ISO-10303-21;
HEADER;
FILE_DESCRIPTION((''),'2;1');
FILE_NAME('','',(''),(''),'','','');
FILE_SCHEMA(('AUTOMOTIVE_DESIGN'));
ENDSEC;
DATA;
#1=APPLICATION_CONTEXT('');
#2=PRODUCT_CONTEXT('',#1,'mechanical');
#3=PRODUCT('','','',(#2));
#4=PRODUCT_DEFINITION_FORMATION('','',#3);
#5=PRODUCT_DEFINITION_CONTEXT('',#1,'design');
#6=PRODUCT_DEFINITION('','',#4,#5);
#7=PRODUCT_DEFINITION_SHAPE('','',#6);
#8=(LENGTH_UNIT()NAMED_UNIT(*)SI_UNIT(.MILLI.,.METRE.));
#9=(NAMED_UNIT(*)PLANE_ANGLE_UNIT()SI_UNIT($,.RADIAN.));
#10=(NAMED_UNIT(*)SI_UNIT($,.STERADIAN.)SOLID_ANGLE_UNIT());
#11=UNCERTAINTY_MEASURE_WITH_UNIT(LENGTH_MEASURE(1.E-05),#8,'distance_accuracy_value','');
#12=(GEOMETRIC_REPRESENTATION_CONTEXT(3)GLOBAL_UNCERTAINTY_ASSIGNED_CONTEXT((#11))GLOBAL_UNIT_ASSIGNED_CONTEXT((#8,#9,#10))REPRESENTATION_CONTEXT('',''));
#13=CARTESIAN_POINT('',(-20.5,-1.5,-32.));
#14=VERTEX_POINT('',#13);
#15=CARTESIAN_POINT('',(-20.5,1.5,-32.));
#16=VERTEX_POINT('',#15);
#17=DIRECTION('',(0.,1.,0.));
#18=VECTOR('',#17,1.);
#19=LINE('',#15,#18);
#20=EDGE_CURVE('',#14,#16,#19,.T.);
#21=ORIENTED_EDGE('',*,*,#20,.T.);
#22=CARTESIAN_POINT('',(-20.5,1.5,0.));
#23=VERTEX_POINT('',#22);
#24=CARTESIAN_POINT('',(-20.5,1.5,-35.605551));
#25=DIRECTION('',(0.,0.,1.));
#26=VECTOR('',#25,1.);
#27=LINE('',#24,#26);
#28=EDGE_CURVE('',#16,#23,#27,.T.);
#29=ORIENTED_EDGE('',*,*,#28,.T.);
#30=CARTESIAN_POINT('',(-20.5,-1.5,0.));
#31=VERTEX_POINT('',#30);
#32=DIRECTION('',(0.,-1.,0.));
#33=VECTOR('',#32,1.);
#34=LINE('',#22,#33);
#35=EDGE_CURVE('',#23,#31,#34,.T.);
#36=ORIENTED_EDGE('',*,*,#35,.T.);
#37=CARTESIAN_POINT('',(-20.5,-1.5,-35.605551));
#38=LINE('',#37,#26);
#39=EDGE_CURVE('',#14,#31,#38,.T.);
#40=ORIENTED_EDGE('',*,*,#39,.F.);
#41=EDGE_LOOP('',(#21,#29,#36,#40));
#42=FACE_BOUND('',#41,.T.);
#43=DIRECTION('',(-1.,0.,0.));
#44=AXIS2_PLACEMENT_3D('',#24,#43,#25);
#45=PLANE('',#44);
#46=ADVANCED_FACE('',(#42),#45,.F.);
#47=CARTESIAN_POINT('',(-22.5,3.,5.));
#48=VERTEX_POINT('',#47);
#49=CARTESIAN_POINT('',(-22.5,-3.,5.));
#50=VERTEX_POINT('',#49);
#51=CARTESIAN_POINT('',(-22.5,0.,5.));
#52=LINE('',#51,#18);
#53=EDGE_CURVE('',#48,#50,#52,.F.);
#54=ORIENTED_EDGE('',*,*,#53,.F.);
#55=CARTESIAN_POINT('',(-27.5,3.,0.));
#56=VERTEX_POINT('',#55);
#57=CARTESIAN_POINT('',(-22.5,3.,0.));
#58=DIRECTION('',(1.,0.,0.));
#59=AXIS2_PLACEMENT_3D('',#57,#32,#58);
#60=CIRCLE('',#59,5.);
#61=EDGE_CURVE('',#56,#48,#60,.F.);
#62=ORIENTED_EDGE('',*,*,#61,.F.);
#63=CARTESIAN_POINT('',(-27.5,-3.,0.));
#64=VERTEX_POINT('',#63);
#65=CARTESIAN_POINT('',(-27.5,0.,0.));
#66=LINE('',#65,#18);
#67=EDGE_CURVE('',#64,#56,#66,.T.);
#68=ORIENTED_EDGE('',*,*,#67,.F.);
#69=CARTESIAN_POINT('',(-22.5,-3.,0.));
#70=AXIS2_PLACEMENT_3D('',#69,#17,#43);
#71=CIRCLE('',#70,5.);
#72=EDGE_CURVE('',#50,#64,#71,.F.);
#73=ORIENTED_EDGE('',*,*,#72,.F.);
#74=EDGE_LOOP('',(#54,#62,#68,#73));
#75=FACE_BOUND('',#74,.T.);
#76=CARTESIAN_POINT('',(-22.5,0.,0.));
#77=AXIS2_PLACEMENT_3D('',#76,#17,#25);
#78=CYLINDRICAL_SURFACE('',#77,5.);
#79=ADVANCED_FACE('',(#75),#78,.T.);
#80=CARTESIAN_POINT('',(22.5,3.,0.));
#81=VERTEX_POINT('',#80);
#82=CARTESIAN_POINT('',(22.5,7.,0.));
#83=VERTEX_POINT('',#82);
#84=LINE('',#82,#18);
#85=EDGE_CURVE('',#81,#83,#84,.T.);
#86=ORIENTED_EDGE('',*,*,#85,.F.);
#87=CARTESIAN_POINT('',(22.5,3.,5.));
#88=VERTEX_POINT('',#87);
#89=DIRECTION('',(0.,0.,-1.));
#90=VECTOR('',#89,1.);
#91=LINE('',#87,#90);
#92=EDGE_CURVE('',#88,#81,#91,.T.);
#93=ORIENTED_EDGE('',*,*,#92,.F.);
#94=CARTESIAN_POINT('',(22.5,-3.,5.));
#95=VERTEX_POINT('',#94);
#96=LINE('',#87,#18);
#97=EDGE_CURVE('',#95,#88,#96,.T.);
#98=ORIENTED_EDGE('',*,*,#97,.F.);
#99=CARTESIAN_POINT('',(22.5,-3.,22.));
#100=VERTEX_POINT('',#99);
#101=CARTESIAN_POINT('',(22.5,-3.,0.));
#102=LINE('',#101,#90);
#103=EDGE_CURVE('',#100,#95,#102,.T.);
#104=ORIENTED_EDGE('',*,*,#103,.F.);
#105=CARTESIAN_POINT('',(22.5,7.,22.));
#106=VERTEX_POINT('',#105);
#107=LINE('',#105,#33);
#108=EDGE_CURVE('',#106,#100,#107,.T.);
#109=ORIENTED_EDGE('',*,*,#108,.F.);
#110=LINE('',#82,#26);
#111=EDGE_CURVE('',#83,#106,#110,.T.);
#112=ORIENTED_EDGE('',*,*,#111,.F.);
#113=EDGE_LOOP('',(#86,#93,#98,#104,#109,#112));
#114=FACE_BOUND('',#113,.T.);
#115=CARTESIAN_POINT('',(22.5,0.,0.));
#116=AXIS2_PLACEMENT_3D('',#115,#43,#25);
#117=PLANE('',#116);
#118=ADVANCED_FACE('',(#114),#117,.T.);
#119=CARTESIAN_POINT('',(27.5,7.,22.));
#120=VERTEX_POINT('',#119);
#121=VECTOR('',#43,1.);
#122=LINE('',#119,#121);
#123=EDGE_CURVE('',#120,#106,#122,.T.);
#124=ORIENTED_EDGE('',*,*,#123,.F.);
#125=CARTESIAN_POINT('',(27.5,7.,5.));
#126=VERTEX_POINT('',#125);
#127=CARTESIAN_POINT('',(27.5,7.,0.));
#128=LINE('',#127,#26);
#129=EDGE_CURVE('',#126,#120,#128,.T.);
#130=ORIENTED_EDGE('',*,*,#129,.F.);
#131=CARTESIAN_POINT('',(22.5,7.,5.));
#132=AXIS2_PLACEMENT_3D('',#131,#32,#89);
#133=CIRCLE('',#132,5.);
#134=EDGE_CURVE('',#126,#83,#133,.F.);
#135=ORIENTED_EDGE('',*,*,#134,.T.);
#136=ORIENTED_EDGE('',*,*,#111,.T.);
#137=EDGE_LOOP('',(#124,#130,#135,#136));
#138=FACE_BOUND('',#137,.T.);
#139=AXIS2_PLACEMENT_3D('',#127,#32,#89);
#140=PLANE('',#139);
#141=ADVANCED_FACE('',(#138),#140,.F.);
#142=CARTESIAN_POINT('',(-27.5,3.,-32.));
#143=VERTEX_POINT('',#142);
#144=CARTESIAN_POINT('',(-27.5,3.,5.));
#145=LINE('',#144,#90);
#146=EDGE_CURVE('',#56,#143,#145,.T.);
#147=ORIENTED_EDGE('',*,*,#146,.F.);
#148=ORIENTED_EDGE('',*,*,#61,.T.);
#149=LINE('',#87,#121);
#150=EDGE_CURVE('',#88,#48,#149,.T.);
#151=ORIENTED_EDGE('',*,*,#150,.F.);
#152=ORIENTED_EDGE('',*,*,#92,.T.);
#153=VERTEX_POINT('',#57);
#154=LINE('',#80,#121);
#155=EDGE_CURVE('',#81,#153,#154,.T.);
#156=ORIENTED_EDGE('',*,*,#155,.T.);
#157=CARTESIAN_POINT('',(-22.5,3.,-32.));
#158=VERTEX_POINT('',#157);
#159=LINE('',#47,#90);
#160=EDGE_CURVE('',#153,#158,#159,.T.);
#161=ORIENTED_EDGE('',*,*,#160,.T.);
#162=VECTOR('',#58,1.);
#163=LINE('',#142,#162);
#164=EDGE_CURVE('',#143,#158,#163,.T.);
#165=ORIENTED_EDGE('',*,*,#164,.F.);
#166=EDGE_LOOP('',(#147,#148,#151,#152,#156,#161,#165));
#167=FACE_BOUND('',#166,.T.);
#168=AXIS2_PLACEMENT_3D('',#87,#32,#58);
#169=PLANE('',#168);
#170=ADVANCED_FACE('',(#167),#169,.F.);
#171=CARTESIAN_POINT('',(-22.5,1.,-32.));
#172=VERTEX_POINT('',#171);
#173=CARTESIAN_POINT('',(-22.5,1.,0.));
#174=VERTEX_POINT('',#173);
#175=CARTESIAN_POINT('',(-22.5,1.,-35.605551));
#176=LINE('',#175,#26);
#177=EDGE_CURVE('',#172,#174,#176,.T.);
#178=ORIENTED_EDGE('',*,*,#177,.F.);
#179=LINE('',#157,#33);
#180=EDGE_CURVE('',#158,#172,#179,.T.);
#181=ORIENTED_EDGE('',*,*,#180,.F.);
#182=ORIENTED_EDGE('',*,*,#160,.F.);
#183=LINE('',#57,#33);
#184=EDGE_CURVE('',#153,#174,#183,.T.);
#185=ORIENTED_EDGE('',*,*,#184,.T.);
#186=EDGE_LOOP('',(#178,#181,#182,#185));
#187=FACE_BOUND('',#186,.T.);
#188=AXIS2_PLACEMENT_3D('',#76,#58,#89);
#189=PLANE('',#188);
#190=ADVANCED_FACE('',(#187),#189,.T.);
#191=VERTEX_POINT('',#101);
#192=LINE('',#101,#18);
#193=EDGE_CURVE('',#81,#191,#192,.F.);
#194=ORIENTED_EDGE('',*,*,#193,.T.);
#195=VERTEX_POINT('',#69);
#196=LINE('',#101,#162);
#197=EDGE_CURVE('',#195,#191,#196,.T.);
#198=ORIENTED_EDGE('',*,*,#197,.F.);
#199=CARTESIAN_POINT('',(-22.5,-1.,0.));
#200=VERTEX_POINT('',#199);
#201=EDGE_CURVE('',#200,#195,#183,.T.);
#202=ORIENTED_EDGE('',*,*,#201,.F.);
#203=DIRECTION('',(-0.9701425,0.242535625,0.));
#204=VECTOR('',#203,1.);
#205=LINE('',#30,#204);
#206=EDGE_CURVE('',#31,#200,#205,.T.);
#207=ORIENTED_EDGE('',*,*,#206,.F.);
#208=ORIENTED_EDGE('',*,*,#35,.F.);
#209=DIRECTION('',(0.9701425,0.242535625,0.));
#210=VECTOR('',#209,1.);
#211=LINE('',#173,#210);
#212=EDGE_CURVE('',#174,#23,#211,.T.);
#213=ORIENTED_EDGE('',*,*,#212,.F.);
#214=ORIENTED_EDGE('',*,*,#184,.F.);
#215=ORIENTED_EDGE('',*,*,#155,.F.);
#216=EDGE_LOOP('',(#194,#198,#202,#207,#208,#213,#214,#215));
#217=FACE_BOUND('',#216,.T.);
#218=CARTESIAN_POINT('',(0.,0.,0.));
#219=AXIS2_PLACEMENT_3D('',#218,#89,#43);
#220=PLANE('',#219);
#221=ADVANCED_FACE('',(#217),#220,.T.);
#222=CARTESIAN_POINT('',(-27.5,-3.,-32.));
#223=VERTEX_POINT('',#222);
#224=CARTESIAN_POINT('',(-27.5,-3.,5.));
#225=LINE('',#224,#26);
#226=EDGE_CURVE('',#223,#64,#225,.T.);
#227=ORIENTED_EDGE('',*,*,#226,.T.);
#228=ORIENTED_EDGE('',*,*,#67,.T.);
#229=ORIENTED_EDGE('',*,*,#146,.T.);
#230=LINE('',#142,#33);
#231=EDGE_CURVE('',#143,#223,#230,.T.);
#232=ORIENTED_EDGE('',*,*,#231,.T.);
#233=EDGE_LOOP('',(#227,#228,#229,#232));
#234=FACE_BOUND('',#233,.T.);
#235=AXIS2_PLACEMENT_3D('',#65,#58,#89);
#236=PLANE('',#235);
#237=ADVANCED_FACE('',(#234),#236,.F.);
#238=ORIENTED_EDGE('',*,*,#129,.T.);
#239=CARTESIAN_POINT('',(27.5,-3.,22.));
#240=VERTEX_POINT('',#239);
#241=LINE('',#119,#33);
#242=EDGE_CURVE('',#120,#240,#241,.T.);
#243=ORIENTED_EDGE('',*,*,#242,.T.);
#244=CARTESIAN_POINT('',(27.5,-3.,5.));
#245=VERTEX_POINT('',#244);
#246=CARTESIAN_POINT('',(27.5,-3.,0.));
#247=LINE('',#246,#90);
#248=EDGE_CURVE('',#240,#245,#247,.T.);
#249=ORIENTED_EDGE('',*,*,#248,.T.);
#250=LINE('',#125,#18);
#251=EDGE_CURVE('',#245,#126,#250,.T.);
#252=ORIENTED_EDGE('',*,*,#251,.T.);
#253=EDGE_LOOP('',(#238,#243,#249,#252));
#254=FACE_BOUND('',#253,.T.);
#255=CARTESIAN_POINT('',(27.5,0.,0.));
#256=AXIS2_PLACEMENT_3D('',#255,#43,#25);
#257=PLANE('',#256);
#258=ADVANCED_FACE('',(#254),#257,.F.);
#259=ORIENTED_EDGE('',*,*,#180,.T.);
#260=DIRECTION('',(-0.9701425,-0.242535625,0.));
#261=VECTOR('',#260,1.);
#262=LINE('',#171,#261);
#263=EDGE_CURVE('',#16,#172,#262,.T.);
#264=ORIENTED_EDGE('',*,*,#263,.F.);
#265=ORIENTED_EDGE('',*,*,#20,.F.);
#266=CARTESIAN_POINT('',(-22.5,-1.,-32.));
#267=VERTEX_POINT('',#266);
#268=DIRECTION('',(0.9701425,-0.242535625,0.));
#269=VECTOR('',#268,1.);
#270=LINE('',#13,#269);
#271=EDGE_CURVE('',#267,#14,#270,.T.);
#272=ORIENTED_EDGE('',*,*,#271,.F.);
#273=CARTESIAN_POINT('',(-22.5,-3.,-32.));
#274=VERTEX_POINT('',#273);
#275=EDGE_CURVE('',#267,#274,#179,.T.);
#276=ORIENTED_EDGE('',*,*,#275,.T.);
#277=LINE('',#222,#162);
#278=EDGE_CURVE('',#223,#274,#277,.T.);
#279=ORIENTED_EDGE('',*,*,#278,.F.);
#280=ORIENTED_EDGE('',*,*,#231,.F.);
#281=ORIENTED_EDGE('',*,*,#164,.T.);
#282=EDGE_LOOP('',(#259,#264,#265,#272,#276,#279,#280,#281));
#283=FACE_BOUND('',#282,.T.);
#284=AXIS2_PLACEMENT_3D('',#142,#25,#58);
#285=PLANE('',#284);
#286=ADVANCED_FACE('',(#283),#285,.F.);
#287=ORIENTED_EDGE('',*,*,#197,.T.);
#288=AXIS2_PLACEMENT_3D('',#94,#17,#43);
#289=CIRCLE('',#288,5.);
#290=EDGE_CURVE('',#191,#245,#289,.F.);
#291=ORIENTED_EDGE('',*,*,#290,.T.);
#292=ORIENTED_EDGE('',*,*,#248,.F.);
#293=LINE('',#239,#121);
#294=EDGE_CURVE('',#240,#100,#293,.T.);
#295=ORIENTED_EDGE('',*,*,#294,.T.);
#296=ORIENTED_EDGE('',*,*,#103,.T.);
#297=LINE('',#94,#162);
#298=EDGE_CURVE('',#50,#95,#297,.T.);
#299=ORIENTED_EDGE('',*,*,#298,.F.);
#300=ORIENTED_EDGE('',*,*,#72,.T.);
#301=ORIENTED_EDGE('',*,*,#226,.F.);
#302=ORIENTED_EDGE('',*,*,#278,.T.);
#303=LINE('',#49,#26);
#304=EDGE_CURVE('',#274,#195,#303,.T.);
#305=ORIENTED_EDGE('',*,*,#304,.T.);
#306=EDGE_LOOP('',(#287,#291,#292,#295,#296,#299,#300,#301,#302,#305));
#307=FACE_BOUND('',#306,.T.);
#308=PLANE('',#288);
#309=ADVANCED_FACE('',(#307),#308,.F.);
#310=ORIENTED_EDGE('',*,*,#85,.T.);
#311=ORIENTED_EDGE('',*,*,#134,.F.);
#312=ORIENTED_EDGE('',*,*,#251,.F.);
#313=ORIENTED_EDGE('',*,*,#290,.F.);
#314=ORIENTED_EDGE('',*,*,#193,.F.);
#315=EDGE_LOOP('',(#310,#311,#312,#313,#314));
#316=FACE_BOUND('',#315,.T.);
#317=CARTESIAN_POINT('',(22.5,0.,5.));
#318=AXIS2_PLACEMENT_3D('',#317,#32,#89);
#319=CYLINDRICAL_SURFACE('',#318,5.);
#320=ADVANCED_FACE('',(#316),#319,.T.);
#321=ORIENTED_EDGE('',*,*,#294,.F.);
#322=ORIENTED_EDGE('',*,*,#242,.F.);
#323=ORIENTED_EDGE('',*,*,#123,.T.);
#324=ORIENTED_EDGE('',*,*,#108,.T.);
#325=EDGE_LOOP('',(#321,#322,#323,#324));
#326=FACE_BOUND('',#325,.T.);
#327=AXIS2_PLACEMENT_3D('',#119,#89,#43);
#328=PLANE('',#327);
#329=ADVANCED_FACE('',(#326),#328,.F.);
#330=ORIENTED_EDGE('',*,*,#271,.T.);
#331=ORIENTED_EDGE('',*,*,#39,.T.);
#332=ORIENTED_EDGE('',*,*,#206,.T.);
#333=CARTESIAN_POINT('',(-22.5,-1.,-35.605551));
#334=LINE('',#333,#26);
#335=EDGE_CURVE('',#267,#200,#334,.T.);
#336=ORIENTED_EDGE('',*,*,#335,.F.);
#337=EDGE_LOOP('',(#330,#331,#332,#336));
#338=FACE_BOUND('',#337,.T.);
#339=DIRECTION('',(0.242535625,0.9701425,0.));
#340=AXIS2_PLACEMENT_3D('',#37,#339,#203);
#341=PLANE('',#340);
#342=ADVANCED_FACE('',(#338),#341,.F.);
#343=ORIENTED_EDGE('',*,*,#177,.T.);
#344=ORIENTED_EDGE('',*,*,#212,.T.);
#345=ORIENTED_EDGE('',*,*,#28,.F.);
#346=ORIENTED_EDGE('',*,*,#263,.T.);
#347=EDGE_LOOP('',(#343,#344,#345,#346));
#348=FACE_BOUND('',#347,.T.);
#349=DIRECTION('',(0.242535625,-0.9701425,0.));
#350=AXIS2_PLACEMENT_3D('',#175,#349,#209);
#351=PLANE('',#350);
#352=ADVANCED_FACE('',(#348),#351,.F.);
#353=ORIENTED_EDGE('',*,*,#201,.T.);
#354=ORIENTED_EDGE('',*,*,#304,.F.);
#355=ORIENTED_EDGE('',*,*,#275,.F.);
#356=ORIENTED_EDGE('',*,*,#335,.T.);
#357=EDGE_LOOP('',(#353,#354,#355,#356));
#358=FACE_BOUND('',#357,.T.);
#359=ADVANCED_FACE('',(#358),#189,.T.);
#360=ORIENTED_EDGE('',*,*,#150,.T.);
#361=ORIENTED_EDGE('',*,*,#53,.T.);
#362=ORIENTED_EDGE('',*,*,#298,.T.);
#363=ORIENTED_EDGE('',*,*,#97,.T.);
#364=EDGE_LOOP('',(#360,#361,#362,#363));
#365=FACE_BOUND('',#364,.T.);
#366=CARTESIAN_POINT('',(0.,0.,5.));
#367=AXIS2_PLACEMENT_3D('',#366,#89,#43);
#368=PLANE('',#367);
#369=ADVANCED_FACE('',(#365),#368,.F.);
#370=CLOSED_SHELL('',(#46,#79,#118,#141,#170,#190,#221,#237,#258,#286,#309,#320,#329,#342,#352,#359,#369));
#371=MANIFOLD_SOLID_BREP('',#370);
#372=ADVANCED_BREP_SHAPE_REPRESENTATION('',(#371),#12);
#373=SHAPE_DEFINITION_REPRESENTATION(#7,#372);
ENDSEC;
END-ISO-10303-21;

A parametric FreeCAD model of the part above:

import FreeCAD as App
import Part
import Sketcher


def edges_at(feature, points):
    """Names of the edges that pass closest to the given points."""
    edges = feature.Shape.Edges
    near = lambda p: min(range(len(edges)), key=lambda i: edges[i].distToShape(Part.Vertex(*p))[0])
    return sorted({f"Edge{near(p) + 1}" for p in points})


def add_polygon(sketch, points):
    """Adds a closed chain of lines whose ends are joined by coincident constraints."""
    first, n = sketch.GeometryCount, len(points)
    for a, b in zip(points, points[1:] + points[:1]):
        sketch.addGeometry(Part.LineSegment(App.Vector(*a, 0), App.Vector(*b, 0)), False)
    for i in range(n):
        sketch.addConstraint(Sketcher.Constraint("Coincident", first + i, 2, first + (i + 1) % n, 1))

doc = App.newDocument("Part")
params = doc.addObject("Spreadsheet::Sheet", "Params")
for row, (alias, value) in enumerate([
    ("sketch1_width", "45 mm"),
    ("sketch1_height", "6 mm"),
    ("pad1_length", "5 mm"),
    ("sketch2_width", "6 mm"),
    ("sketch2_height", "37 mm"),
    ("pad2_length", "5 mm"),
    ("fillet_radius", "5 mm"),
    ("sketch3_width", "10 mm"),
    ("sketch3_height", "22 mm"),
    ("pad3_length", "5 mm"),
    ("fillet2_radius", "5 mm"),
    ("sketch4_height", "3 mm"),
    ("sketch4_height2", "2 mm"),
    ("pad4_length", "32 mm"),
], start=1):
    params.set(f"A{row}", alias)
    params.set(f"B{row}", "=" + value)
    params.setAlias(f"B{row}", alias)

body = doc.addObject("PartDesign::Body", "Body")

sketch1 = body.newObject("Sketcher::SketchObject", "Sketch")
sketch1.AttachmentSupport = (doc.getObject("XY_Plane"), [""])
sketch1.MapMode = "FlatFace"
add_polygon(sketch1, [(-22.5, 3), (-22.5, -3), (22.5, -3), (22.5, 3)])
sketch1.addConstraint(Sketcher.Constraint("Vertical", 0))
sketch1.addConstraint(Sketcher.Constraint("Horizontal", 1))
sketch1.addConstraint(Sketcher.Constraint("Vertical", 2))
sketch1.addConstraint(Sketcher.Constraint("Horizontal", 3))
sketch1.addConstraint(Sketcher.Constraint("Symmetric", 0, 2, 2, 2, -1, 1))
sketch1.addConstraint(Sketcher.Constraint("DistanceX", 1, 1, 1, 2, 45.0))
sketch1.addConstraint(Sketcher.Constraint("DistanceY", 0, 2, 0, 1, 6.0))
sketch1.setExpression("Constraints[9]", "Params.sketch1_width")
sketch1.setExpression("Constraints[10]", "Params.sketch1_height")
pad1 = body.newObject("PartDesign::Pad", "Pad")
pad1.Profile = sketch1
pad1.setExpression("Length", "Params.pad1_length")

sketch2 = body.newObject("Sketcher::SketchObject", "Sketch001")
sketch2.AttachmentSupport = (doc.getObject("YZ_Plane"), [""])
sketch2.MapMode = "FlatFace"
sketch2.AttachmentOffset = App.Placement(App.Vector(0, 0, -22.5), App.Rotation())
add_polygon(sketch2, [(3, -32), (-3, -32), (-3, 5), (3, 5)])
sketch2.addConstraint(Sketcher.Constraint("Horizontal", 0))
sketch2.addConstraint(Sketcher.Constraint("Vertical", 1))
sketch2.addConstraint(Sketcher.Constraint("Horizontal", 2))
sketch2.addConstraint(Sketcher.Constraint("Vertical", 3))
sketch2.addConstraint(Sketcher.Constraint("DistanceX", 0, 2, 0, 1, 6.0))
sketch2.addConstraint(Sketcher.Constraint("DistanceY", 1, 1, 1, 2, 37.0))
sketch2.addConstraint(Sketcher.Constraint("DistanceX", 0, 2, -1, 1, 3.0))
sketch2.addConstraint(Sketcher.Constraint("DistanceY", 0, 2, -1, 1, 32.0))
sketch2.setExpression("Constraints[8]", "Params.sketch2_width")
sketch2.setExpression("Constraints[9]", "Params.sketch2_height")
pad2 = body.newObject("PartDesign::Pad", "Pad001")
pad2.Profile = sketch2
pad2.setExpression("Length", "Params.pad2_length")
pad2.Reversed = True
doc.recompute()

fillet = body.newObject("PartDesign::Fillet", "Fillet")
fillet.Base = (pad2, edges_at(pad2, [(-27.5, 0, 5)]))
fillet.setExpression("Radius", "Params.fillet_radius")

sketch3 = body.newObject("Sketcher::SketchObject", "Sketch002")
sketch3.AttachmentSupport = (doc.getObject("YZ_Plane"), [""])
sketch3.MapMode = "FlatFace"
sketch3.AttachmentOffset = App.Placement(App.Vector(0, 0, 22.5), App.Rotation())
add_polygon(sketch3, [(7, 22), (-3, 22), (-3, 0), (7, 0)])
sketch3.addConstraint(Sketcher.Constraint("Horizontal", 0))
sketch3.addConstraint(Sketcher.Constraint("Vertical", 1))
sketch3.addConstraint(Sketcher.Constraint("Horizontal", 2))
sketch3.addConstraint(Sketcher.Constraint("Vertical", 3))
sketch3.addConstraint(Sketcher.Constraint("PointOnObject", 1, 2, -1))
sketch3.addConstraint(Sketcher.Constraint("DistanceX", 0, 2, 0, 1, 10.0))
sketch3.addConstraint(Sketcher.Constraint("DistanceY", 1, 2, 1, 1, 22.0))
sketch3.addConstraint(Sketcher.Constraint("DistanceX", 0, 2, -1, 1, 3.0))
sketch3.setExpression("Constraints[9]", "Params.sketch3_width")
sketch3.setExpression("Constraints[10]", "Params.sketch3_height")
pad3 = body.newObject("PartDesign::Pad", "Pad002")
pad3.Profile = sketch3
pad3.setExpression("Length", "Params.pad3_length")
doc.recompute()

fillet2 = body.newObject("PartDesign::Fillet", "Fillet001")
fillet2.Base = (pad3, edges_at(pad3, [(27.5, 2, 0)]))
fillet2.setExpression("Radius", "Params.fillet2_radius")

sketch4 = body.newObject("Sketcher::SketchObject", "Sketch003")
sketch4.AttachmentSupport = (doc.getObject("XY_Plane"), [""])
sketch4.MapMode = "FlatFace"
add_polygon(sketch4, [(-22.5, 1), (-20.5, 1.5), (-20.5, -1.5), (-22.5, -1)])
sketch4.addConstraint(Sketcher.Constraint("Vertical", 1))
sketch4.addConstraint(Sketcher.Constraint("Vertical", 3))
sketch4.addConstraint(Sketcher.Constraint("Equal", 0, 2))
sketch4.addConstraint(Sketcher.Constraint("DistanceY", 1, 2, 1, 1, 3.0))
sketch4.addConstraint(Sketcher.Constraint("DistanceY", 3, 1, 3, 2, 2.0))
sketch4.addConstraint(Sketcher.Constraint("DistanceY", 2, 2, -1, 1, 1.0))
sketch4.addConstraint(Sketcher.Constraint("DistanceX", 2, 2, 1, 2, 2.0))
sketch4.addConstraint(Sketcher.Constraint("DistanceX", 0, 2, -1, 1, 20.5))
sketch4.setExpression("Constraints[7]", "Params.sketch4_height")
sketch4.setExpression("Constraints[8]", "Params.sketch4_height2")
pad4 = body.newObject("PartDesign::Pad", "Pad003")
pad4.Profile = sketch4
pad4.setExpression("Length", "Params.pad4_length")
pad4.Reversed = True

doc.recompute()
